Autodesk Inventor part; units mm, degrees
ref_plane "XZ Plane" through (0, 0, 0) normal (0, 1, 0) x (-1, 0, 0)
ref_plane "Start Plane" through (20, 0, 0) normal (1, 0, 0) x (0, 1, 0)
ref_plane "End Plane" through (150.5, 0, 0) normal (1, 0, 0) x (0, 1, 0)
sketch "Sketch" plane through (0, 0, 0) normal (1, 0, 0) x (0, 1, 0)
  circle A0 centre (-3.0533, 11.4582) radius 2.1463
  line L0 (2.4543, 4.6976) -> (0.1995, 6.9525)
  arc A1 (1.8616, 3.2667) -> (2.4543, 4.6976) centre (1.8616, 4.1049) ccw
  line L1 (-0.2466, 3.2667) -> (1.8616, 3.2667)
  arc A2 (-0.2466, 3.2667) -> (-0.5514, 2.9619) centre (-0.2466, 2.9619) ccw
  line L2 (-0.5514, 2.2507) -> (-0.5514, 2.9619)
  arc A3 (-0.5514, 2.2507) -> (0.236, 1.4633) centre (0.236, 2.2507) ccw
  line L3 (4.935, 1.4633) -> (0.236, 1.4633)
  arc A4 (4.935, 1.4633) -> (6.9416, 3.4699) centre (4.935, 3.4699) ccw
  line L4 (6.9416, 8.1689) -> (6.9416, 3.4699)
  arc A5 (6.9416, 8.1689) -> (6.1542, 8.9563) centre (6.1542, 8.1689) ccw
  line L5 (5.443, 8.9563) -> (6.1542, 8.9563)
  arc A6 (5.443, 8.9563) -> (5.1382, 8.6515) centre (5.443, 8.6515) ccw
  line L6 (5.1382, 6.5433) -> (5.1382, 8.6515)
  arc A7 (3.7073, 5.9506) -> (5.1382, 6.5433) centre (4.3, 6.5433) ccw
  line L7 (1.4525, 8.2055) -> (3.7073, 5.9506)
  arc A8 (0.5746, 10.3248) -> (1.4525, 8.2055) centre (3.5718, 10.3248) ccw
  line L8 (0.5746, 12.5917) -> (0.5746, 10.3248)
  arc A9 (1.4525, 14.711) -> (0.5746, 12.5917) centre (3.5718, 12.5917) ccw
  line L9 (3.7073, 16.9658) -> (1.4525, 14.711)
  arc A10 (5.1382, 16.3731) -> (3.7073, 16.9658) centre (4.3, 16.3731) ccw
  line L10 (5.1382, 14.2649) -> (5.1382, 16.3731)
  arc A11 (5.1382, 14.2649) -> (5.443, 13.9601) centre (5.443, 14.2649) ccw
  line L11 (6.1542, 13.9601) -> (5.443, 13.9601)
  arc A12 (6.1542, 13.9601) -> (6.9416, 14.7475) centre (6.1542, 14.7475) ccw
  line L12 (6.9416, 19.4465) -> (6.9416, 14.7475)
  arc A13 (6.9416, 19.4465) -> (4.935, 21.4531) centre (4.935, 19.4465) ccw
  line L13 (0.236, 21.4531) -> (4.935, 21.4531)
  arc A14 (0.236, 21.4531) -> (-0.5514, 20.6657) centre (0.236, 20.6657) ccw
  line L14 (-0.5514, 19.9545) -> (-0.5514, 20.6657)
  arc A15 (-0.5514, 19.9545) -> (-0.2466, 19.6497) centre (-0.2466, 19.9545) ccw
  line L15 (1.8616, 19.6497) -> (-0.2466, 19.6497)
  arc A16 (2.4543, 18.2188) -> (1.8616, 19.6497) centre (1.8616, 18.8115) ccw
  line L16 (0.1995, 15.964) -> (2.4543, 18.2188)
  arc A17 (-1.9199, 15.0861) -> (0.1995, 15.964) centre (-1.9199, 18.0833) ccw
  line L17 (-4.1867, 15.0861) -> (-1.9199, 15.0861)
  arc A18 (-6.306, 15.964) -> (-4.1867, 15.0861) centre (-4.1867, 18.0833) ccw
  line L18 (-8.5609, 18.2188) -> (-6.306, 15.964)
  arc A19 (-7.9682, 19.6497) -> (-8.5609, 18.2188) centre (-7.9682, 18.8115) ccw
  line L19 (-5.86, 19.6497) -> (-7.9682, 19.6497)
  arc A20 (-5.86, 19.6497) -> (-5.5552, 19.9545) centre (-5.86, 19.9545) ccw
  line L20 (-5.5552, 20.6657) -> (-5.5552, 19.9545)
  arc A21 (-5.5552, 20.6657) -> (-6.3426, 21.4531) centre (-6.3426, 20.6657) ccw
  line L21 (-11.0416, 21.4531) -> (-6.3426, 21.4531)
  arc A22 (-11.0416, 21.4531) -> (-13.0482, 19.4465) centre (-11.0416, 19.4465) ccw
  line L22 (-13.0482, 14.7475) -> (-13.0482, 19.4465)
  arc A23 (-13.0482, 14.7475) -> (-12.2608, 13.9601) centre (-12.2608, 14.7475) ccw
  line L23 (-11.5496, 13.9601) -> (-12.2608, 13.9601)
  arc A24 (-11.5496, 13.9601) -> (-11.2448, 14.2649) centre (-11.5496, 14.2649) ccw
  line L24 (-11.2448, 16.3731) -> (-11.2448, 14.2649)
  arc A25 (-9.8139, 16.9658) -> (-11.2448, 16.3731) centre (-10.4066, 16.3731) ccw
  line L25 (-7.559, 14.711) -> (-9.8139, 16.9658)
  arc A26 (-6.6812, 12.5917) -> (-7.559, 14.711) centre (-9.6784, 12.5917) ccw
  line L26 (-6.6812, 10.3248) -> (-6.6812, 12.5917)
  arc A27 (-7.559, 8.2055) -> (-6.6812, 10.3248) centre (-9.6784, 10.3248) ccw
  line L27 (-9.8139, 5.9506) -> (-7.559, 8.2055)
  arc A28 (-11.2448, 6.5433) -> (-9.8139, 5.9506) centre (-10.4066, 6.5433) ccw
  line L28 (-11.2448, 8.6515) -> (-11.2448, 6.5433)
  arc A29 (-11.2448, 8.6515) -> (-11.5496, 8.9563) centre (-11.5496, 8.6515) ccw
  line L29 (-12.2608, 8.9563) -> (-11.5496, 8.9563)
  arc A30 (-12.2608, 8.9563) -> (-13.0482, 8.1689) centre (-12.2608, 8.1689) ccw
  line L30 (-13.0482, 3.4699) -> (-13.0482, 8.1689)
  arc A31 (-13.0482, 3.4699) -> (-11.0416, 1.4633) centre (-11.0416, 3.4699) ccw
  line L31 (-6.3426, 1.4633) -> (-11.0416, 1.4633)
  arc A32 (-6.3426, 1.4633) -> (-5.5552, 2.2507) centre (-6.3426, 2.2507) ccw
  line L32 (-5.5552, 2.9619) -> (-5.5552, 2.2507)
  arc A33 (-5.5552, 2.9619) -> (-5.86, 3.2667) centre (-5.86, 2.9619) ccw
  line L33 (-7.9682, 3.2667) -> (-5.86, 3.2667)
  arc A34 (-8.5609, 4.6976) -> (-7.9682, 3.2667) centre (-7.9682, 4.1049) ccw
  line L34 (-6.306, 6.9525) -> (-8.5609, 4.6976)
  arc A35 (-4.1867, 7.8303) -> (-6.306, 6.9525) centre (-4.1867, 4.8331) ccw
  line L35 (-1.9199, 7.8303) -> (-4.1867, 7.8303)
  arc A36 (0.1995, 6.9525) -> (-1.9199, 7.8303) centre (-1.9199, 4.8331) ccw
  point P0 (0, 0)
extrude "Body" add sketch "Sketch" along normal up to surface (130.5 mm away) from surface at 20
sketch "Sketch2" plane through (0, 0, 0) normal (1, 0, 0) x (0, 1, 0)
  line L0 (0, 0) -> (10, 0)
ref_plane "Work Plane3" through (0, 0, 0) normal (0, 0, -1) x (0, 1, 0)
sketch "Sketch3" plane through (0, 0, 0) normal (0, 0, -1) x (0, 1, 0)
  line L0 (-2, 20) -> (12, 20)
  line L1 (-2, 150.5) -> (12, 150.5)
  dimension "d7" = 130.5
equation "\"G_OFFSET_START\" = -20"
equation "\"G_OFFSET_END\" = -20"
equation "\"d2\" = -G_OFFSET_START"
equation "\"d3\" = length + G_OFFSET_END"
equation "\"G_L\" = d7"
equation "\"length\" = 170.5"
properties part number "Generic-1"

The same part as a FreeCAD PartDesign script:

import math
import FreeCAD as App
import Part
import Sketcher
Q = App.Units.Quantity

doc = App.newDocument("Part")
body = doc.addObject("PartDesign::Body", "Body")

# Sketch on YZ plane
sketch1 = body.newObject("Sketcher::SketchObject", "Sketch")
sketch1.AttachmentSupport = (doc.getObject("YZ_Plane"), [""])
sketch1.MapMode = "FlatFace"
sketch1.AttachmentOffset = App.Placement(App.Vector(0, 0, 0.7874016 * 25.4), App.Rotation())
sketch1.addGeometry([
    Part.LineSegment(App.Vector(0.2, 6.95, 0), App.Vector(2.45, 4.7, 0)),  # 0
    Part.ArcOfCircle(Part.Circle(App.Vector(1.86, 4.1, 0), App.Vector(0, 0, 1), 0.84), math.radians(-90), math.radians(45)),  # 1
    Part.LineSegment(App.Vector(1.86, 3.27, 0), App.Vector(-0.25, 3.27, 0)),  # 2
    Part.ArcOfCircle(Part.Circle(App.Vector(-0.25, 2.96, 0), App.Vector(0, 0, 1), 0.3), math.radians(90), math.radians(180)),  # 3
    Part.LineSegment(App.Vector(-0.55, 2.96, 0), App.Vector(-0.55, 2.25, 0)),  # 4
    Part.ArcOfCircle(Part.Circle(App.Vector(0.24, 2.25, 0), App.Vector(0, 0, 1), 0.79), math.radians(180), math.radians(270)),  # 5
    Part.LineSegment(App.Vector(0.24, 1.46, 0), App.Vector(4.93, 1.46, 0)),  # 6
    Part.ArcOfCircle(Part.Circle(App.Vector(4.93, 3.47, 0), App.Vector(0, 0, 1), 2.01), math.radians(-90), math.radians(0)),  # 7
    Part.LineSegment(App.Vector(6.94, 3.47, 0), App.Vector(6.94, 8.17, 0)),  # 8
    Part.ArcOfCircle(Part.Circle(App.Vector(6.15, 8.17, 0), App.Vector(0, 0, 1), 0.79), math.radians(0), math.radians(90)),  # 9
    Part.LineSegment(App.Vector(6.15, 8.96, 0), App.Vector(5.44, 8.96, 0)),  # 10
    Part.ArcOfCircle(Part.Circle(App.Vector(5.44, 8.65, 0), App.Vector(0, 0, 1), 0.3), math.radians(90), math.radians(180)),  # 11
    Part.LineSegment(App.Vector(5.14, 8.65, 0), App.Vector(5.14, 6.54, 0)),  # 12
    Part.ArcOfCircle(Part.Circle(App.Vector(4.3, 6.54, 0), App.Vector(0, 0, 1), 0.84), math.radians(-135), math.radians(0)),  # 13
    Part.LineSegment(App.Vector(3.71, 5.95, 0), App.Vector(1.45, 8.21, 0)),  # 14
    Part.ArcOfCircle(Part.Circle(App.Vector(3.57, 10.32, 0), App.Vector(0, 0, 1), 3), math.radians(180), math.radians(225)),  # 15
    Part.LineSegment(App.Vector(0.57, 10.32, 0), App.Vector(0.57, 12.59, 0)),  # 16
    Part.ArcOfCircle(Part.Circle(App.Vector(3.57, 12.59, 0), App.Vector(0, 0, 1), 3), math.radians(135), math.radians(180)),  # 17
    Part.LineSegment(App.Vector(1.45, 14.71, 0), App.Vector(3.71, 16.97, 0)),  # 18
    Part.ArcOfCircle(Part.Circle(App.Vector(4.3, 16.37, 0), App.Vector(0, 0, 1), 0.84), math.radians(0), math.radians(135)),  # 19
    Part.LineSegment(App.Vector(5.14, 16.37, 0), App.Vector(5.14, 14.26, 0)),  # 20
    Part.ArcOfCircle(Part.Circle(App.Vector(5.44, 14.26, 0), App.Vector(0, 0, 1), 0.3), math.radians(180), math.radians(270)),  # 21
    Part.LineSegment(App.Vector(5.44, 13.96, 0), App.Vector(6.15, 13.96, 0)),  # 22
    Part.ArcOfCircle(Part.Circle(App.Vector(6.15, 14.75, 0), App.Vector(0, 0, 1), 0.79), math.radians(-90), math.radians(0)),  # 23
    Part.LineSegment(App.Vector(6.94, 14.75, 0), App.Vector(6.94, 19.45, 0)),  # 24
    Part.ArcOfCircle(Part.Circle(App.Vector(4.93, 19.45, 0), App.Vector(0, 0, 1), 2.01), math.radians(0), math.radians(90)),  # 25
    Part.LineSegment(App.Vector(4.93, 21.45, 0), App.Vector(0.24, 21.45, 0)),  # 26
    Part.ArcOfCircle(Part.Circle(App.Vector(0.24, 20.67, 0), App.Vector(0, 0, 1), 0.79), math.radians(90), math.radians(180)),  # 27
    Part.LineSegment(App.Vector(-0.55, 20.67, 0), App.Vector(-0.55, 19.95, 0)),  # 28
    Part.ArcOfCircle(Part.Circle(App.Vector(-0.25, 19.95, 0), App.Vector(0, 0, 1), 0.3), math.radians(180), math.radians(270)),  # 29
    Part.LineSegment(App.Vector(-0.25, 19.65, 0), App.Vector(1.86, 19.65, 0)),  # 30
    Part.ArcOfCircle(Part.Circle(App.Vector(1.86, 18.81, 0), App.Vector(0, 0, 1), 0.84), math.radians(-45), math.radians(90)),  # 31
    Part.LineSegment(App.Vector(2.45, 18.22, 0), App.Vector(0.2, 15.96, 0)),  # 32
    Part.ArcOfCircle(Part.Circle(App.Vector(-1.92, 18.08, 0), App.Vector(0, 0, 1), 3), math.radians(-90), math.radians(-45)),  # 33
    Part.LineSegment(App.Vector(-1.92, 15.09, 0), App.Vector(-4.19, 15.09, 0)),  # 34
    Part.ArcOfCircle(Part.Circle(App.Vector(-4.19, 18.08, 0), App.Vector(0, 0, 1), 3), math.radians(-135), math.radians(-90)),  # 35
    Part.LineSegment(App.Vector(-6.31, 15.96, 0), App.Vector(-8.56, 18.22, 0)),  # 36
    Part.ArcOfCircle(Part.Circle(App.Vector(-7.97, 18.81, 0), App.Vector(0, 0, 1), 0.84), math.radians(90), math.radians(225)),  # 37
    Part.LineSegment(App.Vector(-7.97, 19.65, 0), App.Vector(-5.86, 19.65, 0)),  # 38
    Part.ArcOfCircle(Part.Circle(App.Vector(-5.86, 19.95, 0), App.Vector(0, 0, 1), 0.3), math.radians(-90), math.radians(0)),  # 39
    Part.LineSegment(App.Vector(-5.56, 19.95, 0), App.Vector(-5.56, 20.67, 0)),  # 40
    Part.ArcOfCircle(Part.Circle(App.Vector(-6.34, 20.67, 0), App.Vector(0, 0, 1), 0.79), math.radians(0), math.radians(90)),  # 41
    Part.LineSegment(App.Vector(-6.34, 21.45, 0), App.Vector(-11.04, 21.45, 0)),  # 42
    Part.ArcOfCircle(Part.Circle(App.Vector(-11.04, 19.45, 0), App.Vector(0, 0, 1), 2.01), math.radians(90), math.radians(180)),  # 43
    Part.LineSegment(App.Vector(-13.05, 19.45, 0), App.Vector(-13.05, 14.75, 0)),  # 44
    Part.ArcOfCircle(Part.Circle(App.Vector(-12.26, 14.75, 0), App.Vector(0, 0, 1), 0.79), math.radians(180), math.radians(270)),  # 45
    Part.LineSegment(App.Vector(-12.26, 13.96, 0), App.Vector(-11.55, 13.96, 0)),  # 46
    Part.ArcOfCircle(Part.Circle(App.Vector(-11.55, 14.26, 0), App.Vector(0, 0, 1), 0.3), math.radians(-90), math.radians(0)),  # 47
    Part.LineSegment(App.Vector(-11.24, 14.26, 0), App.Vector(-11.24, 16.37, 0)),  # 48
    Part.ArcOfCircle(Part.Circle(App.Vector(-10.41, 16.37, 0), App.Vector(0, 0, 1), 0.84), math.radians(45), math.radians(180)),  # 49
    Part.LineSegment(App.Vector(-9.81, 16.97, 0), App.Vector(-7.56, 14.71, 0)),  # 50
    Part.ArcOfCircle(Part.Circle(App.Vector(-9.68, 12.59, 0), App.Vector(0, 0, 1), 3), math.radians(0), math.radians(45)),  # 51
    Part.LineSegment(App.Vector(-6.68, 12.59, 0), App.Vector(-6.68, 10.32, 0)),  # 52
    Part.ArcOfCircle(Part.Circle(App.Vector(-9.68, 10.32, 0), App.Vector(0, 0, 1), 3), math.radians(-45), math.radians(0)),  # 53
    Part.LineSegment(App.Vector(-7.56, 8.21, 0), App.Vector(-9.81, 5.95, 0)),  # 54
    Part.ArcOfCircle(Part.Circle(App.Vector(-10.41, 6.54, 0), App.Vector(0, 0, 1), 0.84), math.radians(180), math.radians(315)),  # 55
    Part.LineSegment(App.Vector(-11.24, 6.54, 0), App.Vector(-11.24, 8.65, 0)),  # 56
    Part.ArcOfCircle(Part.Circle(App.Vector(-11.55, 8.65, 0), App.Vector(0, 0, 1), 0.3), math.radians(0), math.radians(90)),  # 57
    Part.LineSegment(App.Vector(-11.55, 8.96, 0), App.Vector(-12.26, 8.96, 0)),  # 58
    Part.ArcOfCircle(Part.Circle(App.Vector(-12.26, 8.17, 0), App.Vector(0, 0, 1), 0.79), math.radians(90), math.radians(180)),  # 59
    Part.LineSegment(App.Vector(-13.05, 8.17, 0), App.Vector(-13.05, 3.47, 0)),  # 60
    Part.ArcOfCircle(Part.Circle(App.Vector(-11.04, 3.47, 0), App.Vector(0, 0, 1), 2.01), math.radians(180), math.radians(270)),  # 61
    Part.LineSegment(App.Vector(-11.04, 1.46, 0), App.Vector(-6.34, 1.46, 0)),  # 62
    Part.ArcOfCircle(Part.Circle(App.Vector(-6.34, 2.25, 0), App.Vector(0, 0, 1), 0.79), math.radians(-90), math.radians(0)),  # 63
    Part.LineSegment(App.Vector(-5.56, 2.25, 0), App.Vector(-5.56, 2.96, 0)),  # 64
    Part.ArcOfCircle(Part.Circle(App.Vector(-5.86, 2.96, 0), App.Vector(0, 0, 1), 0.3), math.radians(0), math.radians(90)),  # 65
    Part.LineSegment(App.Vector(-5.86, 3.27, 0), App.Vector(-7.97, 3.27, 0)),  # 66
    Part.ArcOfCircle(Part.Circle(App.Vector(-7.97, 4.1, 0), App.Vector(0, 0, 1), 0.84), math.radians(135), math.radians(270)),  # 67
    Part.LineSegment(App.Vector(-8.56, 4.7, 0), App.Vector(-6.31, 6.95, 0)),  # 68
    Part.ArcOfCircle(Part.Circle(App.Vector(-4.19, 4.83, 0), App.Vector(0, 0, 1), 3), math.radians(90), math.radians(135)),  # 69
    Part.LineSegment(App.Vector(-4.19, 7.83, 0), App.Vector(-1.92, 7.83, 0)),  # 70
    Part.ArcOfCircle(Part.Circle(App.Vector(-1.92, 4.83, 0), App.Vector(0, 0, 1), 3), math.radians(45), math.radians(90)),  # 71
    Part.Circle(App.Vector(-3.05, 11.46, 0), App.Vector(0, 0, 1), 2.15),  # 72
], False)
sketch1.addConstraint([
    Sketcher.Constraint("Tangent", 0, 2, 1, 2),
    Sketcher.Constraint("Tangent", 1, 1, 2, 1),
    Sketcher.Constraint("Tangent", 2, 2, 3, 1),
    Sketcher.Constraint("Tangent", 3, 2, 4, 1),
    Sketcher.Constraint("Tangent", 4, 2, 5, 1),
    Sketcher.Constraint("Tangent", 5, 2, 6, 1),
    Sketcher.Constraint("Tangent", 6, 2, 7, 1),
    Sketcher.Constraint("Tangent", 7, 2, 8, 1),
    Sketcher.Constraint("Tangent", 8, 2, 9, 1),
    Sketcher.Constraint("Tangent", 9, 2, 10, 1),
    Sketcher.Constraint("Tangent", 10, 2, 11, 1),
    Sketcher.Constraint("Tangent", 11, 2, 12, 1),
    Sketcher.Constraint("Tangent", 12, 2, 13, 2),
    Sketcher.Constraint("Tangent", 13, 1, 14, 1),
    Sketcher.Constraint("Tangent", 14, 2, 15, 2),
    Sketcher.Constraint("Tangent", 15, 1, 16, 1),
    Sketcher.Constraint("Tangent", 16, 2, 17, 2),
    Sketcher.Constraint("Tangent", 17, 1, 18, 1),
    Sketcher.Constraint("Tangent", 18, 2, 19, 2),
    Sketcher.Constraint("Tangent", 19, 1, 20, 1),
    Sketcher.Constraint("Tangent", 20, 2, 21, 1),
    Sketcher.Constraint("Tangent", 21, 2, 22, 1),
    Sketcher.Constraint("Tangent", 22, 2, 23, 1),
    Sketcher.Constraint("Tangent", 23, 2, 24, 1),
    Sketcher.Constraint("Tangent", 24, 2, 25, 1),
    Sketcher.Constraint("Tangent", 25, 2, 26, 1),
    Sketcher.Constraint("Tangent", 26, 2, 27, 1),
    Sketcher.Constraint("Tangent", 27, 2, 28, 1),
    Sketcher.Constraint("Tangent", 28, 2, 29, 1),
    Sketcher.Constraint("Tangent", 29, 2, 30, 1),
    Sketcher.Constraint("Tangent", 30, 2, 31, 2),
    Sketcher.Constraint("Tangent", 31, 1, 32, 1),
    Sketcher.Constraint("Tangent", 32, 2, 33, 2),
    Sketcher.Constraint("Tangent", 33, 1, 34, 1),
    Sketcher.Constraint("Tangent", 34, 2, 35, 2),
    Sketcher.Constraint("Tangent", 35, 1, 36, 1),
    Sketcher.Constraint("Tangent", 36, 2, 37, 2),
    Sketcher.Constraint("Tangent", 37, 1, 38, 1),
    Sketcher.Constraint("Tangent", 38, 2, 39, 1),
    Sketcher.Constraint("Tangent", 39, 2, 40, 1),
    Sketcher.Constraint("Tangent", 40, 2, 41, 1),
    Sketcher.Constraint("Tangent", 41, 2, 42, 1),
    Sketcher.Constraint("Tangent", 42, 2, 43, 1),
    Sketcher.Constraint("Tangent", 43, 2, 44, 1),
    Sketcher.Constraint("Tangent", 44, 2, 45, 1),
    Sketcher.Constraint("Tangent", 45, 2, 46, 1),
    Sketcher.Constraint("Tangent", 46, 2, 47, 1),
    Sketcher.Constraint("Tangent", 47, 2, 48, 1),
    Sketcher.Constraint("Tangent", 48, 2, 49, 2),
    Sketcher.Constraint("Tangent", 49, 1, 50, 1),
    Sketcher.Constraint("Tangent", 50, 2, 51, 2),
    Sketcher.Constraint("Tangent", 51, 1, 52, 1),
    Sketcher.Constraint("Tangent", 52, 2, 53, 2),
    Sketcher.Constraint("Tangent", 53, 1, 54, 1),
    Sketcher.Constraint("Tangent", 54, 2, 55, 2),
    Sketcher.Constraint("Tangent", 55, 1, 56, 1),
    Sketcher.Constraint("Tangent", 56, 2, 57, 1),
    Sketcher.Constraint("Tangent", 57, 2, 58, 1),
    Sketcher.Constraint("Tangent", 58, 2, 59, 1),
    Sketcher.Constraint("Tangent", 59, 2, 60, 1),
    Sketcher.Constraint("Tangent", 60, 2, 61, 1),
    Sketcher.Constraint("Tangent", 61, 2, 62, 1),
    Sketcher.Constraint("Tangent", 62, 2, 63, 1),
    Sketcher.Constraint("Tangent", 63, 2, 64, 1),
    Sketcher.Constraint("Tangent", 64, 2, 65, 1),
    Sketcher.Constraint("Tangent", 65, 2, 66, 1),
    Sketcher.Constraint("Tangent", 66, 2, 67, 2),
    Sketcher.Constraint("Tangent", 67, 1, 68, 1),
    Sketcher.Constraint("Tangent", 68, 2, 69, 2),
    Sketcher.Constraint("Tangent", 69, 1, 70, 1),
    Sketcher.Constraint("Tangent", 70, 2, 71, 2),
    Sketcher.Constraint("Tangent", 71, 1, 0, 1),
    Sketcher.Constraint("Horizontal", 2),
    Sketcher.Constraint("Vertical", 4),
    Sketcher.Constraint("Horizontal", 6),
    Sketcher.Constraint("Vertical", 8),
    Sketcher.Constraint("Horizontal", 10),
    Sketcher.Constraint("Vertical", 12),
    Sketcher.Constraint("Vertical", 16),
    Sketcher.Constraint("Vertical", 20),
    Sketcher.Constraint("Horizontal", 22),
    Sketcher.Constraint("Vertical", 24),
    Sketcher.Constraint("Horizontal", 26),
    Sketcher.Constraint("Vertical", 28),
    Sketcher.Constraint("Horizontal", 30),
    Sketcher.Constraint("Horizontal", 34),
    Sketcher.Constraint("Horizontal", 38),
    Sketcher.Constraint("Vertical", 40),
    Sketcher.Constraint("Horizontal", 42),
    Sketcher.Constraint("Vertical", 44),
    Sketcher.Constraint("Horizontal", 46),
    Sketcher.Constraint("Vertical", 48),
    Sketcher.Constraint("Vertical", 52),
    Sketcher.Constraint("Vertical", 56),
    Sketcher.Constraint("Horizontal", 58),
    Sketcher.Constraint("Vertical", 60),
    Sketcher.Constraint("Horizontal", 62),
    Sketcher.Constraint("Vertical", 64),
    Sketcher.Constraint("Horizontal", 66),
    Sketcher.Constraint("Horizontal", 70),
    Sketcher.Constraint("Equal", 5, 9),
    Sketcher.Constraint("Equal", 3, 11),
    Sketcher.Constraint("Equal", 1, 13),
    Sketcher.Constraint("Equal", 15, 17),
    Sketcher.Constraint("Equal", 13, 19),
    Sketcher.Constraint("Equal", 11, 21),
    Sketcher.Constraint("Equal", 9, 23),
    Sketcher.Constraint("Equal", 7, 25),
    Sketcher.Constraint("Equal", 23, 27),
    Sketcher.Constraint("Equal", 21, 29),
    Sketcher.Constraint("Equal", 19, 31),
    Sketcher.Constraint("Equal", 17, 33),
    Sketcher.Constraint("Equal", 33, 35),
    Sketcher.Constraint("Equal", 31, 37),
    Sketcher.Constraint("Equal", 29, 39),
    Sketcher.Constraint("Equal", 27, 41),
    Sketcher.Constraint("Equal", 25, 43),
    Sketcher.Constraint("Equal", 41, 45),
    Sketcher.Constraint("Equal", 39, 47),
    Sketcher.Constraint("Equal", 37, 49),
    Sketcher.Constraint("Equal", 35, 51),
    Sketcher.Constraint("Equal", 51, 53),
    Sketcher.Constraint("Equal", 49, 55),
    Sketcher.Constraint("Equal", 47, 57),
    Sketcher.Constraint("Equal", 45, 59),
    Sketcher.Constraint("Equal", 43, 61),
    Sketcher.Constraint("Equal", 59, 63),
    Sketcher.Constraint("Equal", 57, 65),
    Sketcher.Constraint("Equal", 55, 67),
    Sketcher.Constraint("Equal", 53, 69),
    Sketcher.Constraint("Equal", 69, 71),
    Sketcher.Constraint("Parallel", 0, 14),
    Sketcher.Constraint("Perpendicular", 14, 18),
    Sketcher.Constraint("Parallel", 18, 32),
    Sketcher.Constraint("Perpendicular", 32, 36),
    Sketcher.Constraint("Parallel", 36, 50),
    Sketcher.Constraint("Perpendicular", 50, 54),
    Sketcher.Constraint("Parallel", 54, 68),
    Sketcher.Constraint("Horizontal", 31, 3, 37, 3),
    Sketcher.Constraint("Horizontal", 27, 3, 41, 3),
    Sketcher.Constraint("Horizontal", 23, 3, 45, 3),
    Sketcher.Constraint("Horizontal", 19, 3, 49, 3),
    Sketcher.Constraint("Horizontal", 17, 3, 51, 3),
    Sketcher.Constraint("Horizontal", 15, 3, 53, 3),
    Sketcher.Constraint("Horizontal", 13, 3, 55, 3),
    Sketcher.Constraint("Horizontal", 11, 3, 57, 3),
    Sketcher.Constraint("Horizontal", 7, 3, 61, 3),
    Sketcher.Constraint("Horizontal", 3, 3, 65, 3),
    Sketcher.Constraint("Horizontal", 32, 2, 35, 1),
    Sketcher.Constraint("Vertical", 13, 3, 19, 3),
    Sketcher.Constraint("Vertical", 9, 3, 23, 3),
    Sketcher.Constraint("Vertical", 5, 3, 27, 3),
    Sketcher.Constraint("Vertical", 1, 3, 31, 3),
    Sketcher.Constraint("Vertical", 45, 3, 59, 3),
    Sketcher.Constraint("Vertical", 41, 3, 63, 3),
    Sketcher.Constraint("Vertical", 37, 3, 67, 3),
    Sketcher.Constraint("Vertical", 35, 3, 69, 3),
    Sketcher.Constraint("Equal", 30, 38),
    Sketcher.Constraint("Equal", 26, 42),
    Sketcher.Constraint("Equal", 22, 46),
    Sketcher.Constraint("Equal", 58, 4),
    Sketcher.Constraint("Equal", 62, 8),
    Sketcher.Constraint("Equal", 66, 12),
    Sketcher.Constraint("Equal", 70, 16),
    Sketcher.Constraint("Equal", 12, 20),
    Sketcher.Constraint("Equal", 8, 24),
    Sketcher.Constraint("Equal", 4, 28),
    Sketcher.Constraint("Equal", 0, 14),
    Sketcher.Constraint("Diameter", 72, Q("0.169 in")),
    Sketcher.Constraint("Radius", 1, Q("0.033 in")),
    Sketcher.Constraint("Radius", 3, Q("0.012 in")),
    Sketcher.Constraint("Radius", 5, Q("0.031 in")),
    Sketcher.Constraint("Radius", 7, Q("0.079 in")),
    Sketcher.Constraint("Radius", 15, Q("0.118 in")),
    Sketcher.Constraint("DistanceX", 2, 2, 2, 1, Q("0.083 in")),
    Sketcher.Constraint("DistanceX", 6, 1, 6, 2, Q("0.185 in")),
    Sketcher.Constraint("DistanceX", 10, 2, 10, 1, Q("0.028 in")),
    Sketcher.Constraint("DistanceX", -1, 1, 15, 3, Q("0.140622 in")),
    Sketcher.Constraint("DistanceX", 34, 2, 34, 1, 2.2668),
    Sketcher.Constraint("DistanceX", -1, 1, 1, 3, Q("0.0733 in")),
    Sketcher.Constraint("DistanceY", -1, 1, 1, 3, Q("0.1616 in")),
    Sketcher.Constraint("DistanceX", 72, 3, -1, 1, Q("0.1202 in")),
    Sketcher.Constraint("DistanceY", -1, 1, 72, 3, Q("0.4511 in")),
])
pad1 = body.newObject("PartDesign::Pad", "Pad")
pad1.Profile = sketch1
pad1.Length = Q("5.1377953 in")

doc.recompute()
